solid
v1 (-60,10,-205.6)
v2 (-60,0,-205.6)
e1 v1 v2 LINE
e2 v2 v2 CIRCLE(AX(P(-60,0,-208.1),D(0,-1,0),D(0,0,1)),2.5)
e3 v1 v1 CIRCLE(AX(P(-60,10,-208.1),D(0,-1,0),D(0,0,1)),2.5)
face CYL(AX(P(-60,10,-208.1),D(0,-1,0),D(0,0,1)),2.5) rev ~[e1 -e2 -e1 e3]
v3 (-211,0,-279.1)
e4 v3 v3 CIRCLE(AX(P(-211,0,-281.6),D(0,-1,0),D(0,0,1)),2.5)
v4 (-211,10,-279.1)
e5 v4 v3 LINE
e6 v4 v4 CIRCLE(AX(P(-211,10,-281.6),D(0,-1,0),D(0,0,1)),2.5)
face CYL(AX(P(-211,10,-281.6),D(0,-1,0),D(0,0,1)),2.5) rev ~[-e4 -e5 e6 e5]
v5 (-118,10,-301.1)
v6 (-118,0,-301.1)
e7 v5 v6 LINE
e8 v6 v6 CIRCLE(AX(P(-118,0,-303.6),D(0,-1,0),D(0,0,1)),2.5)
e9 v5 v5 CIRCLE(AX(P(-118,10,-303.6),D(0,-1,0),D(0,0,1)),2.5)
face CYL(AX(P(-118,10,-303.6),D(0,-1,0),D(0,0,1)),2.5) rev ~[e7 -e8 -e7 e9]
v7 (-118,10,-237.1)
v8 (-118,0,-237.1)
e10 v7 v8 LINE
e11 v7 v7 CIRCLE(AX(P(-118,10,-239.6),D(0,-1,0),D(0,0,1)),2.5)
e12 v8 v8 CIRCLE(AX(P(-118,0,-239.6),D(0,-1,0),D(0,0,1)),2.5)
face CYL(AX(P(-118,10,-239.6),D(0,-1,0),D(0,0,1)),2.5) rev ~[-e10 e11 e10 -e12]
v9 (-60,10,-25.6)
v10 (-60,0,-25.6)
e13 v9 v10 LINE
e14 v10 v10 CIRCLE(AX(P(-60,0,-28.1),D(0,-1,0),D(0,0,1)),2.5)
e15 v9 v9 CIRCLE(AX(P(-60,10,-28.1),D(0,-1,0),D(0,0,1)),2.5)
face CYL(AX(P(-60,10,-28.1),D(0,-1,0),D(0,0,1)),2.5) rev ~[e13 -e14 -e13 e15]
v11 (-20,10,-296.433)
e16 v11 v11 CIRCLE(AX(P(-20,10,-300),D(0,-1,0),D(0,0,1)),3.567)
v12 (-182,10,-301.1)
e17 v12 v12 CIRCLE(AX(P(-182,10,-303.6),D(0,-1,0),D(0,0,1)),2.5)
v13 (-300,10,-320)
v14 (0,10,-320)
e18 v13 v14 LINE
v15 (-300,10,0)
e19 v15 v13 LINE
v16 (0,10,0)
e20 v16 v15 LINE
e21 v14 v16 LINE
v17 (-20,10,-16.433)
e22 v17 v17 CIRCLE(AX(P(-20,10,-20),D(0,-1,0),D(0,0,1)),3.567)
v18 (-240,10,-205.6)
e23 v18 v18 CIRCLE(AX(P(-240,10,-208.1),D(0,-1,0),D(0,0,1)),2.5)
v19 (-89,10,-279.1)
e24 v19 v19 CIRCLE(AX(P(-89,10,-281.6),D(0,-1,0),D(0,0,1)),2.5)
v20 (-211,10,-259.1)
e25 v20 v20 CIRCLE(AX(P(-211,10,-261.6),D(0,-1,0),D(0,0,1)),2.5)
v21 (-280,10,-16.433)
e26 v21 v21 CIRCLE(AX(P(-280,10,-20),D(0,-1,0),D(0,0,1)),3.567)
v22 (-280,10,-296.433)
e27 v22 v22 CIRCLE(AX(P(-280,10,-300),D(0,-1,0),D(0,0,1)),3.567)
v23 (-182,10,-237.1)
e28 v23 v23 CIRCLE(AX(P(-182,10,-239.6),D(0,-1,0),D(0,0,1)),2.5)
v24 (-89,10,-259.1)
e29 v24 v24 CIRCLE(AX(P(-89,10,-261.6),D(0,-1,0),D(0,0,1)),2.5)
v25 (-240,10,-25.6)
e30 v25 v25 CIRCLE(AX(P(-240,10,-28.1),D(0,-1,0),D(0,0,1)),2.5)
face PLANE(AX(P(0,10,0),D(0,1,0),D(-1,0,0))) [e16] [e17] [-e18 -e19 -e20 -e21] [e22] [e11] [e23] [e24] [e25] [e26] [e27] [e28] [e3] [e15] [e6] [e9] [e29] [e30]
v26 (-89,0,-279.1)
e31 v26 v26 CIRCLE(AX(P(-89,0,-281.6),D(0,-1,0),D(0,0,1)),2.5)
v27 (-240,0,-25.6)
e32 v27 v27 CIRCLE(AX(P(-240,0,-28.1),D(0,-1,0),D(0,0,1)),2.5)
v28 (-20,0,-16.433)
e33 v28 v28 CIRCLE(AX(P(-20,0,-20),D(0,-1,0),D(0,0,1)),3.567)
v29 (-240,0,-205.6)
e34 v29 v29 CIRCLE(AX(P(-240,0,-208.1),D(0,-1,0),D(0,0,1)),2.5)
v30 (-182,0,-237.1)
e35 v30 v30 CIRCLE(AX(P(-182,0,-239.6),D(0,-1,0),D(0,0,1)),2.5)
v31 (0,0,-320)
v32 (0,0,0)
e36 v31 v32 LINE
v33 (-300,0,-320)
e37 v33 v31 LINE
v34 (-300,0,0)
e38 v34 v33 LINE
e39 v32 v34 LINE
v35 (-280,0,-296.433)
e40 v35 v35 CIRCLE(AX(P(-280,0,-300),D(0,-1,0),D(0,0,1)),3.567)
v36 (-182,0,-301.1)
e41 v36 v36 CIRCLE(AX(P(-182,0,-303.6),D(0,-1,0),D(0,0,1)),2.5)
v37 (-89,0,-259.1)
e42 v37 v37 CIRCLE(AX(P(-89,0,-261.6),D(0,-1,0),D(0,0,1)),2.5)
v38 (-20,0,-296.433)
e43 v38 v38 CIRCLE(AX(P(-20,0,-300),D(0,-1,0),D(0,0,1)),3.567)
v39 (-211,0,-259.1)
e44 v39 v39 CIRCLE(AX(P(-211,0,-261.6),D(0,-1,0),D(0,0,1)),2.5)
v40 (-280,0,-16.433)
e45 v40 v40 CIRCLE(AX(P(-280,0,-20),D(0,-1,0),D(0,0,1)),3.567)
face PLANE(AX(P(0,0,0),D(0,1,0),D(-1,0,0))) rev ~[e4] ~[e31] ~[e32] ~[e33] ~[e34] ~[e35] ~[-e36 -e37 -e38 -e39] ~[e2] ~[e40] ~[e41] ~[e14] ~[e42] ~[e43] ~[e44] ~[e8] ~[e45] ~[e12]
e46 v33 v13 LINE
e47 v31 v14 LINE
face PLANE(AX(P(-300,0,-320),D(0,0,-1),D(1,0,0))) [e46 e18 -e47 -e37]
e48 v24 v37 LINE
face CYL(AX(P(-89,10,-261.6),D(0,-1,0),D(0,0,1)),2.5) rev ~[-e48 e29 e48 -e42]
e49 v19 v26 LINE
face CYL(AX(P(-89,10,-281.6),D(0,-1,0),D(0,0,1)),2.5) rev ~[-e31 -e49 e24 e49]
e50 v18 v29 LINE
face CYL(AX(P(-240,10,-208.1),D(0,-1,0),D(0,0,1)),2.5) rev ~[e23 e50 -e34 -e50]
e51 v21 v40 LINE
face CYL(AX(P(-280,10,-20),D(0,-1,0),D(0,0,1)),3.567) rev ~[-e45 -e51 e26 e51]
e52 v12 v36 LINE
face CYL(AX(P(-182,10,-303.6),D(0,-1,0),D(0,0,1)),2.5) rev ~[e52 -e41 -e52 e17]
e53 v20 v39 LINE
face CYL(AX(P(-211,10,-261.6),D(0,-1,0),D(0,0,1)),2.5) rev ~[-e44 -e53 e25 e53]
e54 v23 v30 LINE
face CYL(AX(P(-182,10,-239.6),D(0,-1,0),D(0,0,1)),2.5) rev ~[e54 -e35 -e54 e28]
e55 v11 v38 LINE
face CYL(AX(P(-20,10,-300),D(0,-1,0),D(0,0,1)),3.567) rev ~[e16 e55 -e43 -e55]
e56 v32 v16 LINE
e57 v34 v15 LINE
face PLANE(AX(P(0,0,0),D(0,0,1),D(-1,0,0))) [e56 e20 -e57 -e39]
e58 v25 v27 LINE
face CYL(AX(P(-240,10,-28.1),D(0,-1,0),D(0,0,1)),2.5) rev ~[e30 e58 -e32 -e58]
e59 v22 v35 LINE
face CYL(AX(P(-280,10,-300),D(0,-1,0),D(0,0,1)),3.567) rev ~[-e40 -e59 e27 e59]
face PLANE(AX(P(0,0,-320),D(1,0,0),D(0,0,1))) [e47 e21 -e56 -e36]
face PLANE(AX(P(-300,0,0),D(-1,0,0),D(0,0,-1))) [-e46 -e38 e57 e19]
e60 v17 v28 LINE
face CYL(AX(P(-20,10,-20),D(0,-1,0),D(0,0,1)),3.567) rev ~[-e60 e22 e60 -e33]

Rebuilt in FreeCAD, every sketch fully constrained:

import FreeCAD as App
import Part
import Sketcher
from FreeCAD import Vector


def add_polygon(sketch, points):
    """Adds a closed chain of lines whose ends are joined by coincident constraints."""
    first, n = sketch.GeometryCount, len(points)
    for a, b in zip(points, points[1:] + points[:1]):
        sketch.addGeometry(Part.LineSegment(App.Vector(*a, 0), App.Vector(*b, 0)), False)
    for i in range(n):
        sketch.addConstraint(Sketcher.Constraint("Coincident", first + i, 2, first + (i + 1) % n, 1))

doc = App.newDocument("Part")
params = doc.addObject("Spreadsheet::Sheet", "Params")
for row, (alias, value) in enumerate([
    ("sketch1_width", "300 mm"),
    ("sketch1_height", "320 mm"),
    ("pad1_length", "10 mm"),
    ("sketch2_diameter", "5 mm"),
    ("hole_diameter", "5 mm"),
    ("hole2_diameter", "7.134 mm"),
], start=1):
    params.set(f"A{row}", alias)
    params.set(f"B{row}", "=" + value)
    params.setAlias(f"B{row}", alias)

body = doc.addObject("PartDesign::Body", "Body")

# Sketch on XZ plane
sketch1 = doc.addObject("Sketcher::SketchObject", "Sketch")
body.addObject(sketch1)
sketch1.AttachmentSupport = (doc.XZ_Plane, [""])
sketch1.MapMode = "FlatFace"
add_polygon(sketch1, [(-300, 0), (0, 0), (0, -320), (-300, -320)])  # lines 0-3
sketch1.addConstraint([
    Sketcher.Constraint("Horizontal", 0),
    Sketcher.Constraint("Vertical", 1),
    Sketcher.Constraint("Horizontal", 2),
    Sketcher.Constraint("Vertical", 3),
    Sketcher.Constraint("Coincident", 0, 2, -1, 1),
    Sketcher.Constraint("DistanceX", 0, 1, 0, 2, 300.0),
    Sketcher.Constraint("DistanceY", 1, 2, 1, 1, 320.0),
])
sketch1.setExpression("Constraints[9]", "Params.sketch1_width")
sketch1.setExpression("Constraints[10]", "Params.sketch1_height")
pad1 = doc.addObject("PartDesign::Pad", "Pad")
body.addObject(pad1)
pad1.Profile = sketch1
pad1.setExpression("Length", "Params.pad1_length")
pad1.Reversed = True

# Sketch on XZ plane
sketch2 = doc.addObject("Sketcher::SketchObject", "Sketch001")
body.addObject(sketch2)
sketch2.AttachmentSupport = (doc.XZ_Plane, [""])
sketch2.MapMode = "FlatFace"
sketch2.AttachmentOffset = App.Placement(Vector(0, 0, -10), App.Rotation())
sketch2.addGeometry([
    Part.Circle(Vector(-60, -208.1, 0), Vector(0, 0, 1), 2.5),  # 0
    Part.Circle(Vector(-60, -28.1, 0), Vector(0, 0, 1), 2.5),  # 1
    Part.Circle(Vector(-240, -208.1, 0), Vector(0, 0, 1), 2.5),  # 2
    Part.Circle(Vector(-240, -28.1, 0), Vector(0, 0, 1), 2.5),  # 3
    Part.Circle(Vector(-89, -261.6, 0), Vector(0, 0, 1), 2.5),  # 4
    Part.Circle(Vector(-211, -261.6, 0), Vector(0, 0, 1), 2.5),  # 5
    Part.Circle(Vector(-89, -281.6, 0), Vector(0, 0, 1), 2.5),  # 6
    Part.Circle(Vector(-211, -281.6, 0), Vector(0, 0, 1), 2.5),  # 7
    Part.Circle(Vector(-118, -303.6, 0), Vector(0, 0, 1), 2.5),  # 8
    Part.Circle(Vector(-118, -239.6, 0), Vector(0, 0, 1), 2.5),  # 9
    Part.Circle(Vector(-182, -303.6, 0), Vector(0, 0, 1), 2.5),  # 10
    Part.Circle(Vector(-182, -239.6, 0), Vector(0, 0, 1), 2.5),  # 11
], False)
sketch2.addConstraint([
    Sketcher.Constraint("Equal", 0, 1),
    Sketcher.Constraint("Equal", 1, 2),
    Sketcher.Constraint("Equal", 2, 3),
    Sketcher.Constraint("Equal", 3, 4),
    Sketcher.Constraint("Equal", 4, 5),
    Sketcher.Constraint("Equal", 5, 6),
    Sketcher.Constraint("Equal", 6, 7),
    Sketcher.Constraint("Equal", 7, 8),
    Sketcher.Constraint("Equal", 8, 9),
    Sketcher.Constraint("Equal", 9, 10),
    Sketcher.Constraint("Equal", 10, 11),
    Sketcher.Constraint("Horizontal", 0, 3, 2, 3),
    Sketcher.Constraint("Horizontal", 1, 3, 3, 3),
    Sketcher.Constraint("Horizontal", 4, 3, 5, 3),
    Sketcher.Constraint("Horizontal", 6, 3, 7, 3),
    Sketcher.Constraint("Horizontal", 8, 3, 10, 3),
    Sketcher.Constraint("Horizontal", 9, 3, 11, 3),
    Sketcher.Constraint("Vertical", 0, 3, 1, 3),
    Sketcher.Constraint("Vertical", 2, 3, 3, 3),
    Sketcher.Constraint("Vertical", 4, 3, 6, 3),
    Sketcher.Constraint("Vertical", 5, 3, 7, 3),
    Sketcher.Constraint("Vertical", 8, 3, 9, 3),
    Sketcher.Constraint("Vertical", 10, 3, 11, 3),
    Sketcher.Constraint("Diameter", 0, 5.0),
    Sketcher.Constraint("DistanceX", 0, 3, -1, 1, 60.0),
    Sketcher.Constraint("DistanceX", 2, 3, -1, 1, 240.0),
    Sketcher.Constraint("DistanceX", 4, 3, -1, 1, 89.0),
    Sketcher.Constraint("DistanceX", 5, 3, -1, 1, 211.0),
    Sketcher.Constraint("DistanceX", 8, 3, -1, 1, 118.0),
    Sketcher.Constraint("DistanceX", 10, 3, -1, 1, 182.0),
    Sketcher.Constraint("DistanceY", 0, 3, 1, 3, 180.0),
    Sketcher.Constraint("DistanceY", 6, 3, 4, 3, 20.0),
    Sketcher.Constraint("DistanceY", 8, 3, 6, 3, 22.0),
    Sketcher.Constraint("DistanceY", 4, 3, 9, 3, 22.0),
    Sketcher.Constraint("DistanceY", 0, 3, -1, 1, 208.1),
    Sketcher.Constraint("DistanceY", 4, 3, -1, 1, 261.6),
])
sketch2.setExpression("Constraints[23]", "Params.sketch2_diameter")
doc.recompute()
hole = doc.addObject("PartDesign::Hole", "Hole")
body.addObject(hole)
hole.Profile = sketch2
hole.ThreadType = "None"
hole.setExpression("Diameter", "Params.hole_diameter")
hole.DepthType = "ThroughAll"
hole.Reversed = True

# Sketch on XZ plane
sketch3 = doc.addObject("Sketcher::SketchObject", "Sketch002")
body.addObject(sketch3)
sketch3.AttachmentSupport = (doc.XZ_Plane, [""])
sketch3.MapMode = "FlatFace"
sketch3.AttachmentOffset = App.Placement(Vector(0, 0, -10), App.Rotation())
sketch3.addGeometry([
    Part.Circle(Vector(-20, -300, 0), Vector(0, 0, 1), 3.6),
    Part.Circle(Vector(-20, -20, 0), Vector(0, 0, 1), 3.6),
    Part.Circle(Vector(-280, -300, 0), Vector(0, 0, 1), 3.6),
    Part.Circle(Vector(-280, -20, 0), Vector(0, 0, 1), 3.6),
], False)
sketch3.addConstraint([
    Sketcher.Constraint("Equal", 0, 1),
    Sketcher.Constraint("Equal", 1, 2),
    Sketcher.Constraint("Equal", 2, 3),
    Sketcher.Constraint("Horizontal", 0, 3, 2, 3),
    Sketcher.Constraint("Horizontal", 1, 3, 3, 3),
    Sketcher.Constraint("Vertical", 0, 3, 1, 3),
    Sketcher.Constraint("Vertical", 2, 3, 3, 3),
    Sketcher.Constraint("Diameter", 0, 7.134),
    Sketcher.Constraint("DistanceX", 0, 3, -1, 1, 20.0),
    Sketcher.Constraint("DistanceY", 0, 3, -1, 1, 300.0),
    Sketcher.Constraint("DistanceY", 1, 3, -1, 1, 20.0),
    Sketcher.Constraint("DistanceX", 2, 3, -1, 1, 280.0),
])
doc.recompute()
hole2 = doc.addObject("PartDesign::Hole", "Hole001")
body.addObject(hole2)
hole2.Profile = sketch3
hole2.ThreadType = "None"
hole2.setExpression("Diameter", "Params.hole2_diameter")
hole2.DepthType = "ThroughAll"
hole2.Reversed = True

doc.recompute()
